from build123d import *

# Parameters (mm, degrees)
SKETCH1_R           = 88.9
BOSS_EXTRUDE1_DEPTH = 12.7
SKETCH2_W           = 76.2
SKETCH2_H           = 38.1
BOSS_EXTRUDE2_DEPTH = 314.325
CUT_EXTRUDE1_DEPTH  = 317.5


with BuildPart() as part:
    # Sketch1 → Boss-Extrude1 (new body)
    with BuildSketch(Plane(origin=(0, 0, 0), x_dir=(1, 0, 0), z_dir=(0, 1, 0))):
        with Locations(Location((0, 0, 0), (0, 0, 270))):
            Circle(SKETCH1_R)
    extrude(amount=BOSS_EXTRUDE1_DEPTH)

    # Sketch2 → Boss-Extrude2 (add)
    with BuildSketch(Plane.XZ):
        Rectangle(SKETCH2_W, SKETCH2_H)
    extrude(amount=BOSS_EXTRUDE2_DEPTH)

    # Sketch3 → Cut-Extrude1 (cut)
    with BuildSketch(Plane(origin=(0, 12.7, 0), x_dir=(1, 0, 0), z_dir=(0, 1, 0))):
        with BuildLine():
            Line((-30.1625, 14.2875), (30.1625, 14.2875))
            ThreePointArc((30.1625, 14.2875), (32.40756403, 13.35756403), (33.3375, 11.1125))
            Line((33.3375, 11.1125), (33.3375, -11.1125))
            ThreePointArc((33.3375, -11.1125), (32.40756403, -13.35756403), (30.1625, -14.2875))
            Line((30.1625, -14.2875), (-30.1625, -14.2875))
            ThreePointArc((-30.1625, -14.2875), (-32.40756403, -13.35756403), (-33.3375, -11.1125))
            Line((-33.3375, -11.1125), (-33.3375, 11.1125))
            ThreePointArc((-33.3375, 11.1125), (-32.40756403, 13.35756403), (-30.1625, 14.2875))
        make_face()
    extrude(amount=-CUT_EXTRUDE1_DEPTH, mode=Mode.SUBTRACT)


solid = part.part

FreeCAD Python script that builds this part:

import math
import FreeCAD as App
import Part
import Sketcher
Q = App.Units.Quantity

doc = App.newDocument("Part")
params = doc.addObject("Spreadsheet::Sheet", "Params")
for row, (alias, value) in enumerate([
    ("sketch1_diameter", "7 in"),
    ("pad1_length", "0.5 in"),
    ("sketch2_width", "3 in"),
    ("sketch2_height", "1.5 in"),
    ("pad2_length", "12.375 in"),
    ("sketch3_radius", "0.125 in"),
    ("pocket1_length", "12.5 in"),
], start=1):
    params.set(f"A{row}", alias)
    params.set(f"B{row}", "=" + value)
    params.setAlias(f"B{row}", alias)

body = doc.addObject("PartDesign::Body", "Body")

# Sketch on XZ plane
sketch1 = body.newObject("Sketcher::SketchObject", "Sketch")
sketch1.AttachmentSupport = (doc.getObject("XZ_Plane"), [""])
sketch1.MapMode = "FlatFace"
sketch1.addGeometry(Part.Circle(App.Vector(0, 0, 0), App.Vector(0, 0, 1), 88.9), False)
sketch1.addConstraint(Sketcher.Constraint("Coincident", 0, 3, -1, 1))
sketch1.addConstraint(Sketcher.Constraint("Diameter", 0, Q("7 in")))
sketch1.setExpression("Constraints[1]", "Params.sketch1_diameter")
pad1 = body.newObject("PartDesign::Pad", "Pad")
pad1.Profile = sketch1
pad1.setExpression("Length", "Params.pad1_length")
pad1.Reversed = True

# Sketch on XZ plane
sketch2 = body.newObject("Sketcher::SketchObject", "Sketch001")
sketch2.AttachmentSupport = (doc.getObject("XZ_Plane"), [""])
sketch2.MapMode = "FlatFace"
sketch2.addGeometry(Part.LineSegment(App.Vector(-38.1, 19.05, 0), App.Vector(-38.1, -19.05, 0)), False)
sketch2.addGeometry(Part.LineSegment(App.Vector(-38.1, -19.05, 0), App.Vector(38.1, -19.05, 0)), False)
sketch2.addGeometry(Part.LineSegment(App.Vector(38.1, -19.05, 0), App.Vector(38.1, 19.05, 0)), False)
sketch2.addGeometry(Part.LineSegment(App.Vector(38.1, 19.05, 0), App.Vector(-38.1, 19.05, 0)), False)
sketch2.addConstraint(Sketcher.Constraint("Coincident", 0, 2, 1, 1))
sketch2.addConstraint(Sketcher.Constraint("Coincident", 1, 2, 2, 1))
sketch2.addConstraint(Sketcher.Constraint("Coincident", 2, 2, 3, 1))
sketch2.addConstraint(Sketcher.Constraint("Coincident", 3, 2, 0, 1))
sketch2.addConstraint(Sketcher.Constraint("Vertical", 0))
sketch2.addConstraint(Sketcher.Constraint("Horizontal", 1))
sketch2.addConstraint(Sketcher.Constraint("Vertical", 2))
sketch2.addConstraint(Sketcher.Constraint("Horizontal", 3))
sketch2.addConstraint(Sketcher.Constraint("Symmetric", 0, 2, 2, 2, -1, 1))
sketch2.addConstraint(Sketcher.Constraint("DistanceX", 1, 1, 1, 2, Q("3 in")))
sketch2.addConstraint(Sketcher.Constraint("DistanceY", 0, 2, 0, 1, Q("1.5 in")))
sketch2.setExpression("Constraints[9]", "Params.sketch2_width")
sketch2.setExpression("Constraints[10]", "Params.sketch2_height")
pad2 = body.newObject("PartDesign::Pad", "Pad001")
pad2.Profile = sketch2
pad2.setExpression("Length", "Params.pad2_length")

# Sketch on XZ plane
sketch3 = body.newObject("Sketcher::SketchObject", "Sketch002")
sketch3.AttachmentSupport = (doc.getObject("XZ_Plane"), [""])
sketch3.MapMode = "FlatFace"
sketch3.AttachmentOffset = App.Placement(App.Vector(0, 0, -0.5 * 25.4), App.Rotation())
sketch3.addGeometry(Part.LineSegment(App.Vector(30.1625, -14.2875, 0), App.Vector(-30.1625, -14.2875, 0)), False)
sketch3.addGeometry(Part.ArcOfCircle(Part.Circle(App.Vector(-30.1625, -11.1125, 0), App.Vector(0, 0, 1), 3.175), math.radians(-180), math.radians(-90)), False)
sketch3.addGeometry(Part.LineSegment(App.Vector(-33.3375, -11.1125, 0), App.Vector(-33.3375, 11.1125, 0)), False)
sketch3.addGeometry(Part.ArcOfCircle(Part.Circle(App.Vector(-30.1625, 11.1125, 0), App.Vector(0, 0, 1), 3.175), math.radians(90), math.radians(180)), False)
sketch3.addGeometry(Part.LineSegment(App.Vector(-30.1625, 14.2875, 0), App.Vector(30.1625, 14.2875, 0)), False)
sketch3.addGeometry(Part.ArcOfCircle(Part.Circle(App.Vector(30.1625, 11.1125, 0), App.Vector(0, 0, 1), 3.175), math.radians(0), math.radians(90)), False)
sketch3.addGeometry(Part.LineSegment(App.Vector(33.3375, 11.1125, 0), App.Vector(33.3375, -11.1125, 0)), False)
sketch3.addGeometry(Part.ArcOfCircle(Part.Circle(App.Vector(30.1625, -11.1125, 0), App.Vector(0, 0, 1), 3.175), math.radians(-90), math.radians(0)), False)
sketch3.addConstraint(Sketcher.Constraint("Tangent", 0, 2, 1, 2))
sketch3.addConstraint(Sketcher.Constraint("Tangent", 1, 1, 2, 1))
sketch3.addConstraint(Sketcher.Constraint("Tangent", 2, 2, 3, 2))
sketch3.addConstraint(Sketcher.Constraint("Tangent", 3, 1, 4, 1))
sketch3.addConstraint(Sketcher.Constraint("Tangent", 4, 2, 5, 2))
sketch3.addConstraint(Sketcher.Constraint("Tangent", 5, 1, 6, 1))
sketch3.addConstraint(Sketcher.Constraint("Tangent", 6, 2, 7, 2))
sketch3.addConstraint(Sketcher.Constraint("Tangent", 7, 1, 0, 1))
sketch3.addConstraint(Sketcher.Constraint("Horizontal", 0))
sketch3.addConstraint(Sketcher.Constraint("Vertical", 2))
sketch3.addConstraint(Sketcher.Constraint("Horizontal", 4))
sketch3.addConstraint(Sketcher.Constraint("Vertical", 6))
sketch3.addConstraint(Sketcher.Constraint("Equal", 1, 3))
sketch3.addConstraint(Sketcher.Constraint("Equal", 3, 5))
sketch3.addConstraint(Sketcher.Constraint("Equal", 5, 7))
sketch3.addConstraint(Sketcher.Constraint("Symmetric", 1, 3, 5, 3, -1, 1))
sketch3.addConstraint(Sketcher.Constraint("Radius", 1, Q("0.125 in")))
sketch3.addConstraint(Sketcher.Constraint("DistanceY", 0, 2, 3, 3, Q("1 in")))
sketch3.addConstraint(Sketcher.Constraint("DistanceX", 1, 1, 7, 3, Q("2.5 in")))
sketch3.setExpression("Constraints[16]", "Params.sketch3_radius")
pocket1 = body.newObject("PartDesign::Pocket", "Pocket")
pocket1.Profile = sketch3
pocket1.setExpression("Length", "Params.pocket1_length")
pocket1.Reversed = True

doc.recompute()
